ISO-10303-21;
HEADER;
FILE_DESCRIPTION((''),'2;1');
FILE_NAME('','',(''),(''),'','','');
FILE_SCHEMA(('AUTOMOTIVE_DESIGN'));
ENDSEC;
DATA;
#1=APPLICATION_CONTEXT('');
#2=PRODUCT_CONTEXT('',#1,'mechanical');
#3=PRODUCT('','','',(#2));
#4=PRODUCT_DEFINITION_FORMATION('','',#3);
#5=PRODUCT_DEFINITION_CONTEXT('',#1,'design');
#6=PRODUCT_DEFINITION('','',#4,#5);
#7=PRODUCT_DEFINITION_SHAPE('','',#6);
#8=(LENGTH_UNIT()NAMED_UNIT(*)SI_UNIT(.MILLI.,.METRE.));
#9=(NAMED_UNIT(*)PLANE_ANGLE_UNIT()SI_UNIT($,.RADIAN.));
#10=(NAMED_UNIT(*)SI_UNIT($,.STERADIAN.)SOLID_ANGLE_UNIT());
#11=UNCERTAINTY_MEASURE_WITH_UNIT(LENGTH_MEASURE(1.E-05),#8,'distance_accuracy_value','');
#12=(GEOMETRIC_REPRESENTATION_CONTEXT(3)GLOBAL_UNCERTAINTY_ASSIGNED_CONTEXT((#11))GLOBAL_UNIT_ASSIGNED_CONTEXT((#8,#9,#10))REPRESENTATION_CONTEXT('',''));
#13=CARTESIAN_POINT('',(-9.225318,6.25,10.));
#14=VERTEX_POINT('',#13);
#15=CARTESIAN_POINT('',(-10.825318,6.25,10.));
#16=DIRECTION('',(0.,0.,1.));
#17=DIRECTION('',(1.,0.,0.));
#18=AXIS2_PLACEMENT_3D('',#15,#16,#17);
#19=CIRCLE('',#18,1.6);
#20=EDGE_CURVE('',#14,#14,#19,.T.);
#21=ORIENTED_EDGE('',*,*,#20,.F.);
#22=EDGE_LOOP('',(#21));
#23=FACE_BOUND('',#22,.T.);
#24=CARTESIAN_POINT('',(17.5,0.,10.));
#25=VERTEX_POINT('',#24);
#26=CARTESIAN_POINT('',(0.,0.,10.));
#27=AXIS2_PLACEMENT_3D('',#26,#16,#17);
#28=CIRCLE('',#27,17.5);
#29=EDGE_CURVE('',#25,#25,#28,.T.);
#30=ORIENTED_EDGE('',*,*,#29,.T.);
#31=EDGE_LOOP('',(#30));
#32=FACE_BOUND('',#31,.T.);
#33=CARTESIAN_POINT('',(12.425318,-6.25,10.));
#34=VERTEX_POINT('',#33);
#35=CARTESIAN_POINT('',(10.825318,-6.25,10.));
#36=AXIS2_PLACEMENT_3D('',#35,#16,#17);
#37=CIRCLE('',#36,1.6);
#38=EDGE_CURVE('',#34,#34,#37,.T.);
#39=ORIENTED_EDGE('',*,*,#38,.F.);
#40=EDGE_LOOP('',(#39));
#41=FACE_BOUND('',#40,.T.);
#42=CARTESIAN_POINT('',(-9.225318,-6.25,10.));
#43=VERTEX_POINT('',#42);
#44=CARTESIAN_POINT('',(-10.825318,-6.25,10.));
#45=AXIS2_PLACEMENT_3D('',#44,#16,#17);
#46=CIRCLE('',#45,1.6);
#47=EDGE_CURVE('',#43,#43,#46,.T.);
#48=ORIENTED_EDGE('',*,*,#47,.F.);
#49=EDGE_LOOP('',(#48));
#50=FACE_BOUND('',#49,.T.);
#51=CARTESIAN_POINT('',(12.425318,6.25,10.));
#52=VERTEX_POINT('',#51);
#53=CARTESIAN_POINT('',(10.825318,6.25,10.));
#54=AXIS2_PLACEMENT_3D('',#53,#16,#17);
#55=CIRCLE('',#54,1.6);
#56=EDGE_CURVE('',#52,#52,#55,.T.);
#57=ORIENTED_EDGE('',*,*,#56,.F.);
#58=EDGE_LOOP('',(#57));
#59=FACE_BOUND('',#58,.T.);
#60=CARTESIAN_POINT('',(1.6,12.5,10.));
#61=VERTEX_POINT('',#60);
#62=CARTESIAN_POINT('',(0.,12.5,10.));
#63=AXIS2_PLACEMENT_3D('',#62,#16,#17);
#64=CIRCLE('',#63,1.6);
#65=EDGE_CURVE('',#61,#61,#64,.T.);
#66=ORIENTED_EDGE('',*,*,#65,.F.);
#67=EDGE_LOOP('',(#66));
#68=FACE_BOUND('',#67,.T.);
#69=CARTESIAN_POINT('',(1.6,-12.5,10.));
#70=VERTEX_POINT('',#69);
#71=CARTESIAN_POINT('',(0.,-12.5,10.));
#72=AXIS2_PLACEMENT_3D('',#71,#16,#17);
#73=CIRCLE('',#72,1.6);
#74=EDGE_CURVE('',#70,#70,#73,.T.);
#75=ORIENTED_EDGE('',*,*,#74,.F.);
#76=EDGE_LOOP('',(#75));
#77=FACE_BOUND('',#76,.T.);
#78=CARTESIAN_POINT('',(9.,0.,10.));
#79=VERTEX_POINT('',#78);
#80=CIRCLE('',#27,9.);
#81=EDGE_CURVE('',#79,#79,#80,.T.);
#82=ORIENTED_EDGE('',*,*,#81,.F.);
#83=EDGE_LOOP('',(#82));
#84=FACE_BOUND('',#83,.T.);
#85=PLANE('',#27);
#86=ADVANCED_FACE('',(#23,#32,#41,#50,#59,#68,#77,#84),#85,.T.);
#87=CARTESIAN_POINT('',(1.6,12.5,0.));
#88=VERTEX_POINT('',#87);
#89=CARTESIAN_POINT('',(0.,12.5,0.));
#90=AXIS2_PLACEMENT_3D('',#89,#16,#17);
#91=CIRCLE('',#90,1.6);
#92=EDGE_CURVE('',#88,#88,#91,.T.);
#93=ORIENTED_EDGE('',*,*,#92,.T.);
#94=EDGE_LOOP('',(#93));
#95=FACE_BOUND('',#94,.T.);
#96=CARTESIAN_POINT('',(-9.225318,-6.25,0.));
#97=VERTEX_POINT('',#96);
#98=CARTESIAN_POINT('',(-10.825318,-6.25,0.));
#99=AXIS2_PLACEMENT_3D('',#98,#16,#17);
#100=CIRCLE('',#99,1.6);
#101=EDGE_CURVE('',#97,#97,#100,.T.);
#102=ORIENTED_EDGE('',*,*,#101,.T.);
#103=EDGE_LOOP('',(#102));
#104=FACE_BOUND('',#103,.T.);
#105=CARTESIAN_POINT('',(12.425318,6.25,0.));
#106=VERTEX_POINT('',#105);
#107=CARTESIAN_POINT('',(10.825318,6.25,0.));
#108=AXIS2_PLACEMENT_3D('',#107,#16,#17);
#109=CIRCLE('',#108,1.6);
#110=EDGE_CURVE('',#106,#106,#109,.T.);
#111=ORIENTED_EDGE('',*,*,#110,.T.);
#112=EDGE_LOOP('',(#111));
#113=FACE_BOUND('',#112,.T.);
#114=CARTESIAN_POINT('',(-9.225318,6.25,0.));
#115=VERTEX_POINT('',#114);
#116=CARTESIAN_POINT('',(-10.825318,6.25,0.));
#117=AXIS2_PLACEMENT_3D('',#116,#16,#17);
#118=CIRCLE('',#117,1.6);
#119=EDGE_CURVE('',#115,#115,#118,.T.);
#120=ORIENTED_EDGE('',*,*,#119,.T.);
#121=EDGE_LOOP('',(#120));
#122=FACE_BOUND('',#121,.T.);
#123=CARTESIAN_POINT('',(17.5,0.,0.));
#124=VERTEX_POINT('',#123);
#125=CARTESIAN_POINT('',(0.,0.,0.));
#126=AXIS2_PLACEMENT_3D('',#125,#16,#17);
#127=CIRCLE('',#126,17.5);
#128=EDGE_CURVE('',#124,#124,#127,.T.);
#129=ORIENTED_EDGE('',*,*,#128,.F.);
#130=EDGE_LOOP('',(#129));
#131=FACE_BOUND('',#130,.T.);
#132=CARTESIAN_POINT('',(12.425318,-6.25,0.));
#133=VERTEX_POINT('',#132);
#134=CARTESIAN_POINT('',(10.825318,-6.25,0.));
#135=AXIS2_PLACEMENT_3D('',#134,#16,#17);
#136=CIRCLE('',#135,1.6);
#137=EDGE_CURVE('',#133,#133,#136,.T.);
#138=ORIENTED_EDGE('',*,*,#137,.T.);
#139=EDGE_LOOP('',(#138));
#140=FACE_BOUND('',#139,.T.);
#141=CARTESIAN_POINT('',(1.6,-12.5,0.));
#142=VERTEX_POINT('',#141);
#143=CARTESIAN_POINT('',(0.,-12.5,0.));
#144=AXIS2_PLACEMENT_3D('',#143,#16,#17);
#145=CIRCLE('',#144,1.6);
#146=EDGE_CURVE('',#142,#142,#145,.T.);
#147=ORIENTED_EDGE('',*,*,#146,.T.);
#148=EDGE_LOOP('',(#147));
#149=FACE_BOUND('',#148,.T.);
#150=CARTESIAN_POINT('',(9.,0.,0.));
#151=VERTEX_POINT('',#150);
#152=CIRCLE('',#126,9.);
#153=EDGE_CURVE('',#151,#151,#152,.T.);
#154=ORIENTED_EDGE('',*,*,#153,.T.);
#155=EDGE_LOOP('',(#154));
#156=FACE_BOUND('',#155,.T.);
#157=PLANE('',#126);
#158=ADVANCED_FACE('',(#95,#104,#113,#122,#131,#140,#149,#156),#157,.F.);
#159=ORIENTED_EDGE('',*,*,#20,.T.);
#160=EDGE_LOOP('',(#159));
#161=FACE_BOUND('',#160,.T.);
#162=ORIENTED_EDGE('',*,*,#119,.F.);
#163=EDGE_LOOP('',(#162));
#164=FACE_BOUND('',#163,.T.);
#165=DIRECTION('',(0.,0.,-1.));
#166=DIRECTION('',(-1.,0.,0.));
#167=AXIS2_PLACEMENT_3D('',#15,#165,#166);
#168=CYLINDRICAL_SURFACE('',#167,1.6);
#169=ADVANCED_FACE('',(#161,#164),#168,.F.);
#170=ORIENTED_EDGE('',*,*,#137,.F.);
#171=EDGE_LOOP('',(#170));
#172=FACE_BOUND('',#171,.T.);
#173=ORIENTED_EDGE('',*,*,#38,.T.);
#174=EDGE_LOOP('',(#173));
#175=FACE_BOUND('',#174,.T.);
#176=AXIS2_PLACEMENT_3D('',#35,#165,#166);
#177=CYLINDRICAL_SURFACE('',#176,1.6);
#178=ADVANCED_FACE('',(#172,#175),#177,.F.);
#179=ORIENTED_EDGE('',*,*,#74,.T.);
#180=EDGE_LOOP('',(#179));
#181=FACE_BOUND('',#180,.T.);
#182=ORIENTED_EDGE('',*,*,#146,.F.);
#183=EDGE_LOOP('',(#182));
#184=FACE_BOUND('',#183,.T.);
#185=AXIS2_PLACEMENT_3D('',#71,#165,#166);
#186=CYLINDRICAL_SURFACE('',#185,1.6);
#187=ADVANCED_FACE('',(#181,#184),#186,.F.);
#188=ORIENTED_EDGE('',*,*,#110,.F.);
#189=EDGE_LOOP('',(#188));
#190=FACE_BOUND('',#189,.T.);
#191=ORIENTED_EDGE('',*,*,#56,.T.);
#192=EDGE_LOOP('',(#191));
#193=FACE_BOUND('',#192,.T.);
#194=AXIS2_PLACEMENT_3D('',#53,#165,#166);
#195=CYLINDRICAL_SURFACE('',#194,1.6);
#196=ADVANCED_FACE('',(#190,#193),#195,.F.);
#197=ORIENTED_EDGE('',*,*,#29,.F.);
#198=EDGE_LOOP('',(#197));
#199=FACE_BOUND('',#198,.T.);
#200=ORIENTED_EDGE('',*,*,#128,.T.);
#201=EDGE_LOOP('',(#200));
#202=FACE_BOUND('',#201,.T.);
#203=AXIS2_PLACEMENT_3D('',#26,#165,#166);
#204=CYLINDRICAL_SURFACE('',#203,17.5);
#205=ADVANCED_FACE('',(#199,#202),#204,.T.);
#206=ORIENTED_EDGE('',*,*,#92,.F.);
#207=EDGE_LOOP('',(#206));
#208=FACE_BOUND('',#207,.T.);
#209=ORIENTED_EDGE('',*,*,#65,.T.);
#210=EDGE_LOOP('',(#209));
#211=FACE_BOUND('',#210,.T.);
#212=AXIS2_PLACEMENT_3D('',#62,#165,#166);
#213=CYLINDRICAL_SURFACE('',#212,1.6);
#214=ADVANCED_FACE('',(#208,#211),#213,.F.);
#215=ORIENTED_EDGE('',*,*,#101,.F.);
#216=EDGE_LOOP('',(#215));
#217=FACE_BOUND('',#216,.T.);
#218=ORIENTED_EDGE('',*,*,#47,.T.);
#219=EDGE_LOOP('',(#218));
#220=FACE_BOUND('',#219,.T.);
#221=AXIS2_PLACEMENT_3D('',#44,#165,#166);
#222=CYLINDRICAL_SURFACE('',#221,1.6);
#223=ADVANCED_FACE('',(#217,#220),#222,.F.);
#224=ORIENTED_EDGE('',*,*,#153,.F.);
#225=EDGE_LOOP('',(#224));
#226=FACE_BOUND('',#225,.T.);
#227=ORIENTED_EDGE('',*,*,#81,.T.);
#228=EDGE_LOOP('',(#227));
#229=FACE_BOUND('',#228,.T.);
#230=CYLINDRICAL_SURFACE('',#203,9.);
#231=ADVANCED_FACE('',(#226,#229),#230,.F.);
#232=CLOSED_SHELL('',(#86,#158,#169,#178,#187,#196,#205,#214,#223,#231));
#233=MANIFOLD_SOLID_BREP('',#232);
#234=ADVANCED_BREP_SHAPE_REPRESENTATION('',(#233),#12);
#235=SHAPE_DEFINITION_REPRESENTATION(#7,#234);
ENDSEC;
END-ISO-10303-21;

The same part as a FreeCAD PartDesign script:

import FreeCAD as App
import Part
import Sketcher

V = App.Vector

doc = App.newDocument("Part")
body = doc.addObject("PartDesign::Body", "Body")

sketch1 = body.newObject("Sketcher::SketchObject", "Sketch")
sketch1.AttachmentSupport = (doc.getObject("XY_Plane"), [""])
sketch1.MapMode = "FlatFace"
sketch1.addGeometry([
    Part.Circle(V(0, 0, 0), V(0, 0, 1), 17.5),
    Part.Circle(V(-10.8, -6.2, 0), V(0, 0, 1), 1.6),
    Part.Circle(V(0, -12.5, 0), V(0, 0, 1), 1.6),
    Part.Circle(V(10.8, -6.2, 0), V(0, 0, 1), 1.6),
    Part.Circle(V(-10.8, 6.2, 0), V(0, 0, 1), 1.6),
    Part.Circle(V(0, 0, 0), V(0, 0, 1), 9),
    Part.Circle(V(10.8, 6.2, 0), V(0, 0, 1), 1.6),
    Part.Circle(V(0, 12.5, 0), V(0, 0, 1), 1.6),
], False)
sketch1.addConstraint([
    Sketcher.Constraint("Coincident", 0, 3, -1, 1),
    Sketcher.Constraint("Coincident", 5, 3, -1, 1),
    Sketcher.Constraint("Equal", 1, 2),
    Sketcher.Constraint("Equal", 2, 3),
    Sketcher.Constraint("Equal", 3, 4),
    Sketcher.Constraint("Equal", 4, 6),
    Sketcher.Constraint("Equal", 6, 7),
    Sketcher.Constraint("Symmetric", 3, 3, 4, 3, -1, 1),
    Sketcher.Constraint("Symmetric", 1, 3, 6, 3, -1, 1),
    Sketcher.Constraint("Symmetric", 2, 3, 7, 3, -1, 1),
    Sketcher.Constraint("Symmetric", 1, 3, 3, 3, -2),
    Sketcher.Constraint("PointOnObject", 2, 3, -2),
    Sketcher.Constraint("Diameter", 0, 35.0),
    Sketcher.Constraint("Diameter", 5, 18.0),
    Sketcher.Constraint("Diameter", 1, 3.2),
    Sketcher.Constraint("DistanceY", 2, 3, -1, 1, 12.5),
    Sketcher.Constraint("DistanceY", 1, 3, 4, 3, 12.5),
    Sketcher.Constraint("DistanceX", 1, 3, -1, 1, 10.825318),
])
pad1 = body.newObject("PartDesign::Pad", "Pad")
pad1.Profile = sketch1
pad1.Length = 10

doc.recompute()
